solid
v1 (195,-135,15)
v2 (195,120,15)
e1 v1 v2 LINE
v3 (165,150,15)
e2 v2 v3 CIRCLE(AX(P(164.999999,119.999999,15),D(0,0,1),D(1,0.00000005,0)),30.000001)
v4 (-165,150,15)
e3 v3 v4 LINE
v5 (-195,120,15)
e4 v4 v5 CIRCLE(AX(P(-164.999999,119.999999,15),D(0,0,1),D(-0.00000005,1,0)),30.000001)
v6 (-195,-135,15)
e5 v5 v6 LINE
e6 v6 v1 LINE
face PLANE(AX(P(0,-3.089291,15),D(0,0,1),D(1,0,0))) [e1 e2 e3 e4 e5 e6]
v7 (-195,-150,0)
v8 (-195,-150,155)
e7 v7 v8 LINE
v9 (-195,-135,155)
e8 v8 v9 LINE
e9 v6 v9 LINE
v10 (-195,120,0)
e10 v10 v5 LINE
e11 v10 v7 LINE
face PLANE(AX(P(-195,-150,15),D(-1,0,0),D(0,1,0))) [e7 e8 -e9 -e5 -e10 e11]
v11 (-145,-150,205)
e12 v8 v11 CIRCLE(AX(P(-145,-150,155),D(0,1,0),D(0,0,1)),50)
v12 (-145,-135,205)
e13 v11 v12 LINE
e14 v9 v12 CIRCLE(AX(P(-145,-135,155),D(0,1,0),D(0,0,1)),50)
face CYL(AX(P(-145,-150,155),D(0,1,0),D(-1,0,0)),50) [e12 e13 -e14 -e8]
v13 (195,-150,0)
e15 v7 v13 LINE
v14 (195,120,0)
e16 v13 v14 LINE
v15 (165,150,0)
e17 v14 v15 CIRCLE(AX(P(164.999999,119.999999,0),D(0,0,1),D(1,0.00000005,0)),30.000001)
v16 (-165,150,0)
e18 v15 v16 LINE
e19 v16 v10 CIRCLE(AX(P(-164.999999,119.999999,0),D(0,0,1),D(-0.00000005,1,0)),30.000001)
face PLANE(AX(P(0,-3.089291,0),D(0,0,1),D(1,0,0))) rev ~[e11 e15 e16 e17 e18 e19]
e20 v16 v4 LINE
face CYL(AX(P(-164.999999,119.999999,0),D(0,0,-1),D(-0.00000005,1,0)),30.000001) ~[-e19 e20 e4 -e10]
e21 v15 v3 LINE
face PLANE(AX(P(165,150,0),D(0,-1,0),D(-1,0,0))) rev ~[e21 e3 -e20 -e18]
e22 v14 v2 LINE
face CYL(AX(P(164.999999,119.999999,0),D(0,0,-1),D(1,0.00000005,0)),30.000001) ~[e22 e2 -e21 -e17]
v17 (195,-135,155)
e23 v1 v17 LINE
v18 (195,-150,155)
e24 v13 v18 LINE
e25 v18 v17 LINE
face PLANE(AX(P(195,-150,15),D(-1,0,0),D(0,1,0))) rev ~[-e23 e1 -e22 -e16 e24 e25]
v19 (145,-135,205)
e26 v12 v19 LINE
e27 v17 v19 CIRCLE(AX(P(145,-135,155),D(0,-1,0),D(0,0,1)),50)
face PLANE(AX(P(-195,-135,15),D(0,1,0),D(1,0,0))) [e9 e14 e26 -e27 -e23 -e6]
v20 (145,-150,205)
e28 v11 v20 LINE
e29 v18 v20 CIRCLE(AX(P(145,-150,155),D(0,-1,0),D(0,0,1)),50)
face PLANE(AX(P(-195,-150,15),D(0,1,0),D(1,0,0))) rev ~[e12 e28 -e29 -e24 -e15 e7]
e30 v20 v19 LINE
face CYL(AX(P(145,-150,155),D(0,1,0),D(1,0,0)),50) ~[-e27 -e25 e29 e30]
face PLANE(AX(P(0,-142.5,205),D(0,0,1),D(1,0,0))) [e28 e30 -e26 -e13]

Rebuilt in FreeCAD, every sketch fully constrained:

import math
import FreeCAD as App
import Part
import Sketcher
Q = App.Units.Quantity


def edges_at(feature, points):
    """Names of the edges that pass closest to the given points."""
    edges = feature.Shape.Edges
    near = lambda p: min(range(len(edges)), key=lambda i: edges[i].distToShape(Part.Vertex(*p))[0])
    return sorted({f"Edge{near(p) + 1}" for p in points})

doc = App.newDocument("Part")
body = doc.addObject("PartDesign::Body", "Body")

# Sketch on XY plane
sketch1 = body.newObject("Sketcher::SketchObject", "Sketch")
sketch1.AttachmentSupport = (doc.getObject("XY_Plane"), [""])
sketch1.MapMode = "FlatFace"
sketch1.addGeometry(Part.LineSegment(App.Vector(-195, 120, 0), App.Vector(-195, -150, 0)), False)
sketch1.addGeometry(Part.LineSegment(App.Vector(-195, -150, 0), App.Vector(195, -150, 0)), False)
sketch1.addGeometry(Part.LineSegment(App.Vector(195, -150, 0), App.Vector(195, 120, 0)), False)
sketch1.addGeometry(Part.ArcOfCircle(Part.Circle(App.Vector(165, 120, 0), App.Vector(0, 0, 1), 30), math.radians(0), math.radians(90)), False)
sketch1.addGeometry(Part.LineSegment(App.Vector(165, 150, 0), App.Vector(-165, 150, 0)), False)
sketch1.addGeometry(Part.ArcOfCircle(Part.Circle(App.Vector(-165, 120, 0), App.Vector(0, 0, 1), 30), math.radians(90), math.radians(180)), False)
sketch1.addConstraint(Sketcher.Constraint("Coincident", 0, 2, 1, 1))
sketch1.addConstraint(Sketcher.Constraint("Coincident", 1, 2, 2, 1))
sketch1.addConstraint(Sketcher.Constraint("Tangent", 2, 2, 3, 1))
sketch1.addConstraint(Sketcher.Constraint("Tangent", 3, 2, 4, 1))
sketch1.addConstraint(Sketcher.Constraint("Tangent", 4, 2, 5, 1))
sketch1.addConstraint(Sketcher.Constraint("Tangent", 5, 2, 0, 1))
sketch1.addConstraint(Sketcher.Constraint("Vertical", 0))
sketch1.addConstraint(Sketcher.Constraint("Horizontal", 1))
sketch1.addConstraint(Sketcher.Constraint("Vertical", 2))
sketch1.addConstraint(Sketcher.Constraint("Horizontal", 4))
sketch1.addConstraint(Sketcher.Constraint("Equal", 3, 5))
sketch1.addConstraint(Sketcher.Constraint("Radius", 3, Q("30.000001 mm")))
sketch1.addConstraint(Sketcher.Constraint("DistanceX", 1, 1, 1, 2, Q("390 mm")))
sketch1.addConstraint(Sketcher.Constraint("DistanceY", 0, 2, 0, 1, Q("270 mm")))
sketch1.addConstraint(Sketcher.Constraint("DistanceX", -1, 1, 3, 3, Q("164.999999 mm")))
sketch1.addConstraint(Sketcher.Constraint("DistanceY", -1, 1, 3, 3, Q("119.999999 mm")))
pad1 = body.newObject("PartDesign::Pad", "Pad")
pad1.Profile = sketch1
pad1.Length = 15

# Sketch on XY plane
sketch2 = body.newObject("Sketcher::SketchObject", "Sketch001")
sketch2.AttachmentSupport = (doc.getObject("XY_Plane"), [""])
sketch2.MapMode = "FlatFace"
sketch2.AttachmentOffset = App.Placement(App.Vector(0, 0, 15), App.Rotation())
sketch2.addGeometry(Part.LineSegment(App.Vector(-195, -135, 0), App.Vector(-195, -150, 0)), False)
sketch2.addGeometry(Part.LineSegment(App.Vector(-195, -150, 0), App.Vector(195, -150, 0)), False)
sketch2.addGeometry(Part.LineSegment(App.Vector(195, -150, 0), App.Vector(195, -135, 0)), False)
sketch2.addGeometry(Part.LineSegment(App.Vector(195, -135, 0), App.Vector(-195, -135, 0)), False)
sketch2.addConstraint(Sketcher.Constraint("Coincident", 0, 2, 1, 1))
sketch2.addConstraint(Sketcher.Constraint("Coincident", 1, 2, 2, 1))
sketch2.addConstraint(Sketcher.Constraint("Coincident", 2, 2, 3, 1))
sketch2.addConstraint(Sketcher.Constraint("Coincident", 3, 2, 0, 1))
sketch2.addConstraint(Sketcher.Constraint("Vertical", 0))
sketch2.addConstraint(Sketcher.Constraint("Horizontal", 1))
sketch2.addConstraint(Sketcher.Constraint("Vertical", 2))
sketch2.addConstraint(Sketcher.Constraint("Horizontal", 3))
sketch2.addConstraint(Sketcher.Constraint("DistanceX", 1, 1, 1, 2, Q("390 mm")))
sketch2.addConstraint(Sketcher.Constraint("DistanceY", 0, 2, 0, 1, Q("15 mm")))
sketch2.addConstraint(Sketcher.Constraint("DistanceX", 0, 2, -1, 1, Q("195 mm")))
sketch2.addConstraint(Sketcher.Constraint("DistanceY", 0, 2, -1, 1, Q("150 mm")))
pad2 = body.newObject("PartDesign::Pad", "Pad001")
pad2.Profile = sketch2
pad2.Length = 190
doc.recompute()

fillet = body.newObject("PartDesign::Fillet", "Fillet")
fillet.Base = (pad2, edges_at(pad2, [(195, -142.5, 205), (-195, -142.5, 205)]))
fillet.Radius = 50

doc.recompute()
